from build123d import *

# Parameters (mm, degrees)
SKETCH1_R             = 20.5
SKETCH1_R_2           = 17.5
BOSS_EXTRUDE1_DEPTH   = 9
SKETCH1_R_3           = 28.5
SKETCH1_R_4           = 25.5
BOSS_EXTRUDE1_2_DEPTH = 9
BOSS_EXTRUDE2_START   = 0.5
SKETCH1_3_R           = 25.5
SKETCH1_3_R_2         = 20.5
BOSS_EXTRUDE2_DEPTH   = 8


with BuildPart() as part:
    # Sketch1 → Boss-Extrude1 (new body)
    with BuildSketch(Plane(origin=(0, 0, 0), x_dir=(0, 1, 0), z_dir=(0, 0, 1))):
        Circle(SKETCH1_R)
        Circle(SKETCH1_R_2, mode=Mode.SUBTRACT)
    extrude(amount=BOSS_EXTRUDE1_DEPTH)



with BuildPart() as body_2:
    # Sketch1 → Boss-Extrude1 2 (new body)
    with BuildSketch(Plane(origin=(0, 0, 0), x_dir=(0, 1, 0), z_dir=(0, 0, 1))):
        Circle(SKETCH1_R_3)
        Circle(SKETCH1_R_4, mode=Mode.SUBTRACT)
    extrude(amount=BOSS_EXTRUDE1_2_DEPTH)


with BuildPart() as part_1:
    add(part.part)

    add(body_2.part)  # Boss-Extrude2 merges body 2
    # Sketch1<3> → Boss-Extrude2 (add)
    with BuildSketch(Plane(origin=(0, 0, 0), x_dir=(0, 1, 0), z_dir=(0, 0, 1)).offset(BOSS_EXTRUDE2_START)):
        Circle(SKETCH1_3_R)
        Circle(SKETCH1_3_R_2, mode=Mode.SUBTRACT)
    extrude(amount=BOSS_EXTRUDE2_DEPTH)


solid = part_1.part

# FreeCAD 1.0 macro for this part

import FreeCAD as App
import Part
import Sketcher
Q = App.Units.Quantity

doc = App.newDocument("Part")
body = doc.addObject("PartDesign::Body", "Body")

sketch1 = body.newObject("Sketcher::SketchObject", "Sketch")
sketch1.AttachmentSupport = (doc.getObject("XY_Plane"), [""])
sketch1.MapMode = "FlatFace"
sketch1.addGeometry(Part.Circle(App.Vector(0, 0, 0), App.Vector(0, 0, 1), 20.5), False)
sketch1.addGeometry(Part.Circle(App.Vector(0, 0, 0), App.Vector(0, 0, 1), 17.5), False)
sketch1.addConstraint(Sketcher.Constraint("Coincident", 0, 3, -1, 1))
sketch1.addConstraint(Sketcher.Constraint("Coincident", 1, 3, -1, 1))
sketch1.addConstraint(Sketcher.Constraint("Diameter", 0, Q("41 mm")))
sketch1.addConstraint(Sketcher.Constraint("Diameter", 1, Q("35 mm")))
pad1 = body.newObject("PartDesign::Pad", "Pad")
pad1.Profile = sketch1
pad1.Length = 9
body2 = doc.addObject("PartDesign::Body", "Body001")

sketch2 = body2.newObject("Sketcher::SketchObject", "Sketch001")
sketch2.AttachmentSupport = (doc.getObject("XY_Plane001"), [""])
sketch2.MapMode = "FlatFace"
sketch2.addGeometry(Part.Circle(App.Vector(0, 0, 0), App.Vector(0, 0, 1), 28.5), False)
sketch2.addGeometry(Part.Circle(App.Vector(0, 0, 0), App.Vector(0, 0, 1), 25.5), False)
sketch2.addConstraint(Sketcher.Constraint("Coincident", 0, 3, -1, 1))
sketch2.addConstraint(Sketcher.Constraint("Coincident", 1, 3, -1, 1))
sketch2.addConstraint(Sketcher.Constraint("Diameter", 0, Q("57 mm")))
sketch2.addConstraint(Sketcher.Constraint("Diameter", 1, Q("51 mm")))
pad2 = body2.newObject("PartDesign::Pad", "Pad001")
pad2.Profile = sketch2
pad2.Length = 9
body.AllowCompound = True
doc.recompute()

boolean = body.newObject("PartDesign::Boolean", "Boolean")
boolean.Type = "Fuse"
boolean.addObjects([body2])

sketch3 = body.newObject("Sketcher::SketchObject", "Sketch002")
sketch3.AttachmentSupport = (doc.getObject("XY_Plane"), [""])
sketch3.MapMode = "FlatFace"
sketch3.AttachmentOffset = App.Placement(App.Vector(0, 0, 0.5), App.Rotation())
sketch3.addGeometry(Part.Circle(App.Vector(0, 0, 0), App.Vector(0, 0, 1), 25.5), False)
sketch3.addGeometry(Part.Circle(App.Vector(0, 0, 0), App.Vector(0, 0, 1), 20.5), False)
sketch3.addConstraint(Sketcher.Constraint("Coincident", 0, 3, -1, 1))
sketch3.addConstraint(Sketcher.Constraint("Coincident", 1, 3, -1, 1))
sketch3.addConstraint(Sketcher.Constraint("Diameter", 0, Q("51 mm")))
sketch3.addConstraint(Sketcher.Constraint("Diameter", 1, Q("41 mm")))
pad3 = body.newObject("PartDesign::Pad", "Pad002")
pad3.Profile = sketch3
pad3.Length = 8

doc.recompute()
